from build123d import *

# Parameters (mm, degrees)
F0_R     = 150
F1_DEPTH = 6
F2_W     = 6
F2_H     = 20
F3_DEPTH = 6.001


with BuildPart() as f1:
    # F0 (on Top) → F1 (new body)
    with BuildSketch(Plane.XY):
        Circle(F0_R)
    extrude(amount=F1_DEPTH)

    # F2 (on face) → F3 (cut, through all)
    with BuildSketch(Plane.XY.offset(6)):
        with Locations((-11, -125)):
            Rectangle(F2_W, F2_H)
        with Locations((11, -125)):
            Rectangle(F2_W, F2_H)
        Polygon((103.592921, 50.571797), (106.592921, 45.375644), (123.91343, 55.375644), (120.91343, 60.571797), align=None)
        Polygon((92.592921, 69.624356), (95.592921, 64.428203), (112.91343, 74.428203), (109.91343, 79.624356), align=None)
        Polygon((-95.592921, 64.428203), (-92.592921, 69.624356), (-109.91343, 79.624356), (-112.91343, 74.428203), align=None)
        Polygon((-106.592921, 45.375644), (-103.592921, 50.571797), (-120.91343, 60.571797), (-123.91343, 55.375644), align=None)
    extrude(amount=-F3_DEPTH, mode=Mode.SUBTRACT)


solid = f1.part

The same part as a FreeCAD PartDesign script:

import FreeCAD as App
import Part
import Sketcher

V = App.Vector
Q = App.Units.Quantity


def add_polygon(sketch, points):
    """Adds a closed chain of lines whose ends are joined by coincident constraints."""
    first, n = sketch.GeometryCount, len(points)
    for a, b in zip(points, points[1:] + points[:1]):
        sketch.addGeometry(Part.LineSegment(App.Vector(*a, 0), App.Vector(*b, 0)), False)
    for i in range(n):
        sketch.addConstraint(Sketcher.Constraint("Coincident", first + i, 2, first + (i + 1) % n, 1))

doc = App.newDocument("Part")
body = doc.addObject("PartDesign::Body", "Body")

# Sketch on XY plane
sketch1 = body.newObject("Sketcher::SketchObject", "Sketch")
sketch1.AttachmentSupport = (doc.getObject("XY_Plane"), [""])
sketch1.MapMode = "FlatFace"
sketch1.addGeometry(Part.Circle(V(0, 0, 0), V(0, 0, 1), 150), False)
sketch1.addConstraint([
    Sketcher.Constraint("Coincident", 0, 3, -1, 1),
    Sketcher.Constraint("Diameter", 0, Q("300 mm")),
])
pad1 = body.newObject("PartDesign::Pad", "Pad")
pad1.Profile = sketch1
pad1.Length = 6

# Sketch on XY plane
sketch2 = body.newObject("Sketcher::SketchObject", "Sketch001")
sketch2.AttachmentSupport = (doc.getObject("XY_Plane"), [""])
sketch2.MapMode = "FlatFace"
sketch2.AttachmentOffset = App.Placement(V(0, 0, 6), App.Rotation())
add_polygon(sketch2, [(-14, -115), (-14, -135), (-8, -135), (-8, -115)])  # lines 0-3
add_polygon(sketch2, [(8, -115), (8, -135), (14, -135), (14, -115)])  # lines 4-7
add_polygon(sketch2, [(103.592921, 50.571797), (106.592921, 45.375644), (123.91343, 55.375644), (120.91343, 60.571797)])  # lines 8-11
add_polygon(sketch2, [(92.592921, 69.624356), (95.592921, 64.428203), (112.91343, 74.428203), (109.91343, 79.624356)])  # lines 12-15
add_polygon(sketch2, [(-95.592921, 64.428203), (-92.592921, 69.624356), (-109.91343, 79.624356), (-112.91343, 74.428203)])  # lines 16-19
add_polygon(sketch2, [(-106.592921, 45.375644), (-103.592921, 50.571797), (-120.91343, 60.571797), (-123.91343, 55.375644)])  # lines 20-23
sketch2.addConstraint([
    Sketcher.Constraint("Vertical", 0),
    Sketcher.Constraint("Horizontal", 1),
    Sketcher.Constraint("Vertical", 2),
    Sketcher.Constraint("Horizontal", 3),
    Sketcher.Constraint("Vertical", 4),
    Sketcher.Constraint("Horizontal", 5),
    Sketcher.Constraint("Vertical", 6),
    Sketcher.Constraint("Horizontal", 7),
    Sketcher.Constraint("Symmetric", 1, 2, 4, 2, -2),
    Sketcher.Constraint("Symmetric", 3, 2, 6, 2, -2),
    Sketcher.Constraint("Symmetric", 15, 2, 16, 2, -2),
    Sketcher.Constraint("Symmetric", 14, 2, 17, 2, -2),
    Sketcher.Constraint("Symmetric", 13, 2, 18, 2, -2),
    Sketcher.Constraint("Symmetric", 12, 2, 19, 2, -2),
    Sketcher.Constraint("Symmetric", 11, 2, 20, 2, -2),
    Sketcher.Constraint("Symmetric", 10, 2, 21, 2, -2),
    Sketcher.Constraint("Symmetric", 9, 2, 22, 2, -2),
    Sketcher.Constraint("Symmetric", 8, 2, 23, 2, -2),
    Sketcher.Constraint("Perpendicular", 8, 9),
    Sketcher.Constraint("Perpendicular", 9, 10),
    Sketcher.Constraint("Perpendicular", 10, 11),
    Sketcher.Constraint("Perpendicular", 11, 12),
    Sketcher.Constraint("Perpendicular", 12, 13),
    Sketcher.Constraint("Perpendicular", 13, 14),
    Sketcher.Constraint("Perpendicular", 14, 15),
    Sketcher.Constraint("Equal", 10, 12),
    Sketcher.Constraint("Equal", 11, 13),
    Sketcher.Constraint("DistanceX", 1, 1, 1, 2, Q("6 mm")),
    Sketcher.Constraint("DistanceY", 0, 2, 0, 1, Q("20 mm")),
    Sketcher.Constraint("Angle", 8, Q("-60.000003 deg")),
    Sketcher.Constraint("Distance", 8, Q("6 mm")),
    Sketcher.Constraint("Distance", 9, Q("20.000001 mm")),
    Sketcher.Constraint("DistanceX", 0, 2, -1, 1, Q("14 mm")),
    Sketcher.Constraint("DistanceY", 0, 2, -1, 1, Q("135 mm")),
    Sketcher.Constraint("DistanceX", 12, 2, 11, 2, Q("8 mm")),
    Sketcher.Constraint("DistanceX", -1, 1, 8, 2, Q("106.592921 mm")),
    Sketcher.Constraint("DistanceY", 8, 2, 12, 2, Q("19.052559 mm")),
    Sketcher.Constraint("DistanceY", -1, 1, 8, 2, Q("45.375644 mm")),
])
pocket1 = body.newObject("PartDesign::Pocket", "Pocket")
pocket1.Profile = sketch2
pocket1.Type = "ThroughAll"

doc.recompute()
